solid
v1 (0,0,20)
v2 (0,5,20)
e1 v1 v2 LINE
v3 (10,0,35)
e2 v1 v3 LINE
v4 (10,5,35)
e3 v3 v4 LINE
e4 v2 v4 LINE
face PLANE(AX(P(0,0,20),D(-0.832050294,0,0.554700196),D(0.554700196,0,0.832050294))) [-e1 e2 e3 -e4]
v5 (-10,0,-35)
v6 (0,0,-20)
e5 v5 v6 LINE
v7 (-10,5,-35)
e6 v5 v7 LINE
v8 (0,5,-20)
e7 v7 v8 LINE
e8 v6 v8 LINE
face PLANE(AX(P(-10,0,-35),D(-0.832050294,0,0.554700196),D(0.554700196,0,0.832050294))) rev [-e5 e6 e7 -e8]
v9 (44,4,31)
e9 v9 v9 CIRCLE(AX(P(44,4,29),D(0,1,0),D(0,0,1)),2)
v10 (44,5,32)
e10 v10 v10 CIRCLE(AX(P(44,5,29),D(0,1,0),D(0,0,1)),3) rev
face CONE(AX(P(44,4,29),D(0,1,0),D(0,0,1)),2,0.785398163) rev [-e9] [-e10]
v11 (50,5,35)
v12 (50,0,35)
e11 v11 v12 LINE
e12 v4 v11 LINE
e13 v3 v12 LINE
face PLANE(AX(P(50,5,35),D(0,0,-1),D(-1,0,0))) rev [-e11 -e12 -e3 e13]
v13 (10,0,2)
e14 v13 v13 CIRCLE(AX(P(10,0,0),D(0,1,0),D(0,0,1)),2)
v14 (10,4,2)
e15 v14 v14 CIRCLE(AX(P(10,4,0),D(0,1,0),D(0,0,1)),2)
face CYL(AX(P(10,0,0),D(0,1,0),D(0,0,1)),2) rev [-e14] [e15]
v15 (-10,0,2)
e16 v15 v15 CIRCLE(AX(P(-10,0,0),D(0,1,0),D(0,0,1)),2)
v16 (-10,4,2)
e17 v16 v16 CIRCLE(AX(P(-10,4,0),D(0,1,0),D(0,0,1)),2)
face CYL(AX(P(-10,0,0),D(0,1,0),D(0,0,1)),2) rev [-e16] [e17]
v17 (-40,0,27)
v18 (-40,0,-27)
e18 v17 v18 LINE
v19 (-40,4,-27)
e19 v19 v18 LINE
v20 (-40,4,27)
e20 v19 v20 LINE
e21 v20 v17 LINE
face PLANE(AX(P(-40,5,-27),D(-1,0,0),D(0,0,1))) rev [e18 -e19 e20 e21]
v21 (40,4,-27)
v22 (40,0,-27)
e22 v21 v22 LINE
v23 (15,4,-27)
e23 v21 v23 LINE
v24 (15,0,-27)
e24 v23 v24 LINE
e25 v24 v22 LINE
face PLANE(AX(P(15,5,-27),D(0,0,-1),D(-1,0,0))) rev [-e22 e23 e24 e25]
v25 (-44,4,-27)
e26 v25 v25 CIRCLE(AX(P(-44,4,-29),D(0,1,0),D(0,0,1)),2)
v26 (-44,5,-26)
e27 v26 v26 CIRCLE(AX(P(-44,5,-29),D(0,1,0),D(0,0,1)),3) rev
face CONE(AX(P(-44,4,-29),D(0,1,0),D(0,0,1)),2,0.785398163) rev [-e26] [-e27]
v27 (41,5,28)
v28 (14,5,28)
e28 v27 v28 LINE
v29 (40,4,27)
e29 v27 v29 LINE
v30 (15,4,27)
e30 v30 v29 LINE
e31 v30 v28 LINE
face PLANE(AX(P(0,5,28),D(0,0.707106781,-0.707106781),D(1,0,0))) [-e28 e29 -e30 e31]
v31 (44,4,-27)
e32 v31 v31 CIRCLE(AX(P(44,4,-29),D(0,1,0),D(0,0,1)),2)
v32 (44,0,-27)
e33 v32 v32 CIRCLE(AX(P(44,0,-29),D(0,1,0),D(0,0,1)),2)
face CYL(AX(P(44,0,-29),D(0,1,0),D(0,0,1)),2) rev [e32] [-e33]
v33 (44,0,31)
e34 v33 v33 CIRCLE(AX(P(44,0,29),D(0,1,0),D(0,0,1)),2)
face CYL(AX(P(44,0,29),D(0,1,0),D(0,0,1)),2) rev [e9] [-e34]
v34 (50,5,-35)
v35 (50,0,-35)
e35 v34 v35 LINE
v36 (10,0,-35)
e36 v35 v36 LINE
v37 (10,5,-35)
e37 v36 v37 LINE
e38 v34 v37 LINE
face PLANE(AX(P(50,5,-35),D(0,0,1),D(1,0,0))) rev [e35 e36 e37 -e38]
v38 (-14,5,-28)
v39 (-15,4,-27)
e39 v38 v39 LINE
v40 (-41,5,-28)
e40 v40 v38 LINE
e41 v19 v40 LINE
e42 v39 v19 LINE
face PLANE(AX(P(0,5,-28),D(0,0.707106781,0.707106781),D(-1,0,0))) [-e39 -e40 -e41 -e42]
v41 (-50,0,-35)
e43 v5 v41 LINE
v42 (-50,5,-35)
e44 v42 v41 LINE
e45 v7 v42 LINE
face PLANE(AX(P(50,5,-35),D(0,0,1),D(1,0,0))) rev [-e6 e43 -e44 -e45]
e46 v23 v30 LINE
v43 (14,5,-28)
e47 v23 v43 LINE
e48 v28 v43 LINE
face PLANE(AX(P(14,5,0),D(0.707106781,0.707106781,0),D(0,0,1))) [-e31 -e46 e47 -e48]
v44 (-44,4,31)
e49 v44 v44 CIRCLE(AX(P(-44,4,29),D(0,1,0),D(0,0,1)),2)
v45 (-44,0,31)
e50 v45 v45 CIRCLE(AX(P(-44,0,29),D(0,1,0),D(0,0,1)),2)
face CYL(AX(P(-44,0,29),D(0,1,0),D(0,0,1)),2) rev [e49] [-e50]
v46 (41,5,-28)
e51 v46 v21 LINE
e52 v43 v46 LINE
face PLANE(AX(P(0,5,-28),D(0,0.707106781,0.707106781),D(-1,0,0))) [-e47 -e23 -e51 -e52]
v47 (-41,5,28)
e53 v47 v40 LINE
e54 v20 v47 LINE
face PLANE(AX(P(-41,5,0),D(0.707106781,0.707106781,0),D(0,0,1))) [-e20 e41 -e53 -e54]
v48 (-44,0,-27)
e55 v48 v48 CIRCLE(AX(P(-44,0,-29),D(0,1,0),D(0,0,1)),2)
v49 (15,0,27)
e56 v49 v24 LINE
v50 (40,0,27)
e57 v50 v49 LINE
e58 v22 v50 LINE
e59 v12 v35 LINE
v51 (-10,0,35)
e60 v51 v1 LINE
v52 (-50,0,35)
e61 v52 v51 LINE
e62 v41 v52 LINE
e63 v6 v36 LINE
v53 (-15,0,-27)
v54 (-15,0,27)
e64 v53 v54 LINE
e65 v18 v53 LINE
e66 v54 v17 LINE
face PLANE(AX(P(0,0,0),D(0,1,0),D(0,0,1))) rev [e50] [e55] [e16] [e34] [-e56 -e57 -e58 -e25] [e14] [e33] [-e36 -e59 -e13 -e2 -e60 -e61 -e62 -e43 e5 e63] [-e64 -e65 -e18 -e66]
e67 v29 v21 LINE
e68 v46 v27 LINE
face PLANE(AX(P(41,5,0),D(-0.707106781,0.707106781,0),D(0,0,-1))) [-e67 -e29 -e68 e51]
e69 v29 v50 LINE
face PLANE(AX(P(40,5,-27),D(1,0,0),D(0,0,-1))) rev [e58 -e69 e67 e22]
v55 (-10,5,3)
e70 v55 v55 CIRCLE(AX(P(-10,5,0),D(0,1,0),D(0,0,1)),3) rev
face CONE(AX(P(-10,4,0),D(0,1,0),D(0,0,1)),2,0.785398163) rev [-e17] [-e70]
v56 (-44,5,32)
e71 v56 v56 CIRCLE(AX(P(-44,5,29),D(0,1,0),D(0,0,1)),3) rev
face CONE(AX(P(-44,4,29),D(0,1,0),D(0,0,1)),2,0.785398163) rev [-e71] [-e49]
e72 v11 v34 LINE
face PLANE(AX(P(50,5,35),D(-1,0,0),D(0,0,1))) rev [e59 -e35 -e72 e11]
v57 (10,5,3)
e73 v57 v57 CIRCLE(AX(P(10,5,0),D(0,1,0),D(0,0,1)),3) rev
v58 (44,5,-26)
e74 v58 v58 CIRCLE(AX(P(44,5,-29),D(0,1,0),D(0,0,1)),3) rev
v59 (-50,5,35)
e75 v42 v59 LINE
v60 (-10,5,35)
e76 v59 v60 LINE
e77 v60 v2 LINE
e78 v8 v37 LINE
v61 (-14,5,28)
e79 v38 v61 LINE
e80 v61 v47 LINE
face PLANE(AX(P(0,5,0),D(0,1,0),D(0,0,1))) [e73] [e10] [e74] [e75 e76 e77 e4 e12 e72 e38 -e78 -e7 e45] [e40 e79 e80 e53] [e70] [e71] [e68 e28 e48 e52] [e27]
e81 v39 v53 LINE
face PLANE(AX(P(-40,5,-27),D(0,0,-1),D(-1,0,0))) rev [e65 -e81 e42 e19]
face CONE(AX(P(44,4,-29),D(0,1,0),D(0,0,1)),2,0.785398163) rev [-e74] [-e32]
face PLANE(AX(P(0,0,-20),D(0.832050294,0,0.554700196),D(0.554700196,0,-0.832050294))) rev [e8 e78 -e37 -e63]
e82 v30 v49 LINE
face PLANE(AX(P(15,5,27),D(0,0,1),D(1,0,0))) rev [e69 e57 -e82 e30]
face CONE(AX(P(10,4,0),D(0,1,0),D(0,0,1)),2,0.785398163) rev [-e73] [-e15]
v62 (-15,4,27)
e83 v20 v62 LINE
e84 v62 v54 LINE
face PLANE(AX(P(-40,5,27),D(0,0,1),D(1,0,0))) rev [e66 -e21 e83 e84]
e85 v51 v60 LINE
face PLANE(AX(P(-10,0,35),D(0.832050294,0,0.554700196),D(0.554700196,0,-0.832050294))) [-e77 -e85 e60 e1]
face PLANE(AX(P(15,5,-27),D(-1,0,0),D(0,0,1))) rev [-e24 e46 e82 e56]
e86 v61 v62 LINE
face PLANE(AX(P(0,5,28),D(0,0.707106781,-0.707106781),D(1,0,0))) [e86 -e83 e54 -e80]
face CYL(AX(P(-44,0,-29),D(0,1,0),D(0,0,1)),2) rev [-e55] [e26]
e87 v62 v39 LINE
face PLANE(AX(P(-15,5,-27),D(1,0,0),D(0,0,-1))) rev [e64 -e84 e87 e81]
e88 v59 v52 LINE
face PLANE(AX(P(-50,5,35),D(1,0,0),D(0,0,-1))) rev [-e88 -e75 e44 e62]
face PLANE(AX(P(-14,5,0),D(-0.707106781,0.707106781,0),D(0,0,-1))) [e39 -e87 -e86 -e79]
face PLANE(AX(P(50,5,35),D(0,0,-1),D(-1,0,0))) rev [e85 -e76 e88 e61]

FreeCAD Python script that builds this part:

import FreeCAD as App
import Part
import Sketcher
Q = App.Units.Quantity


def edges_at(feature, points):
    """Names of the edges that pass closest to the given points."""
    edges = feature.Shape.Edges
    near = lambda p: min(range(len(edges)), key=lambda i: edges[i].distToShape(Part.Vertex(*p))[0])
    return sorted({f"Edge{near(p) + 1}" for p in points})

doc = App.newDocument("Part")
body = doc.addObject("PartDesign::Body", "Body")

# Sketch on XZ plane
sketch1 = doc.addObject("Sketcher::SketchObject", "Sketch")
body.addObject(sketch1)
sketch1.AttachmentSupport = (doc.XZ_Plane, [""])
sketch1.MapMode = "FlatFace"
sketch1.addGeometry([
    Part.LineSegment(App.Vector(-50, -35, 0), App.Vector(-50, 35, 0)),
    Part.LineSegment(App.Vector(-50, 35, 0), App.Vector(50, 35, 0)),
    Part.LineSegment(App.Vector(50, 35, 0), App.Vector(50, -35, 0)),
    Part.LineSegment(App.Vector(50, -35, 0), App.Vector(-50, -35, 0)),
], False)
sketch1.addConstraint([
    Sketcher.Constraint("Coincident", 0, 2, 1, 1),
    Sketcher.Constraint("Coincident", 1, 2, 2, 1),
    Sketcher.Constraint("Coincident", 2, 2, 3, 1),
    Sketcher.Constraint("Coincident", 3, 2, 0, 1),
    Sketcher.Constraint("Vertical", 0),
    Sketcher.Constraint("Horizontal", 1),
    Sketcher.Constraint("Vertical", 2),
    Sketcher.Constraint("Horizontal", 3),
    Sketcher.Constraint("Symmetric", 0, 2, 2, 2, -1, 1),
    Sketcher.Constraint("DistanceX", 1, 1, 1, 2, Q("100 mm")),
    Sketcher.Constraint("DistanceY", 0, 1, 0, 2, Q("70 mm")),
])
pad1 = doc.addObject("PartDesign::Pad", "Pad")
body.addObject(pad1)
pad1.Profile = sketch1
pad1.Length = 5
pad1.Reversed = True

# Sketch on XZ plane
sketch2 = doc.addObject("Sketcher::SketchObject", "Sketch001")
body.addObject(sketch2)
sketch2.AttachmentSupport = (doc.XZ_Plane, [""])
sketch2.MapMode = "FlatFace"
sketch2.AttachmentOffset = App.Placement(App.Vector(0, 0, -5), App.Rotation())
sketch2.addGeometry([
    Part.Circle(App.Vector(-44, -29, 0), App.Vector(0, 0, 1), 2),
    Part.Circle(App.Vector(44, -29, 0), App.Vector(0, 0, 1), 2),
    Part.Circle(App.Vector(44, 29, 0), App.Vector(0, 0, 1), 2),
    Part.Circle(App.Vector(-44, 29, 0), App.Vector(0, 0, 1), 2),
], False)
sketch2.addConstraint([
    Sketcher.Constraint("Equal", 0, 1),
    Sketcher.Constraint("Equal", 1, 2),
    Sketcher.Constraint("Equal", 2, 3),
    Sketcher.Constraint("Symmetric", 0, 3, 2, 3, -1, 1),
    Sketcher.Constraint("Symmetric", 1, 3, 3, 3, -1, 1),
    Sketcher.Constraint("Symmetric", 0, 3, 1, 3, -2),
    Sketcher.Constraint("Diameter", 0, Q("4 mm")),
    Sketcher.Constraint("DistanceX", 0, 3, -1, 1, Q("44 mm")),
    Sketcher.Constraint("DistanceY", 0, 3, -1, 1, Q("29 mm")),
])
pocket1 = doc.addObject("PartDesign::Pocket", "Pocket")
body.addObject(pocket1)
pocket1.Profile = sketch2
pocket1.Type = "ThroughAll"
pocket1.Reversed = True

# Sketch on XZ plane
sketch3 = doc.addObject("Sketcher::SketchObject", "Sketch002")
body.addObject(sketch3)
sketch3.AttachmentSupport = (doc.XZ_Plane, [""])
sketch3.MapMode = "FlatFace"
sketch3.AttachmentOffset = App.Placement(App.Vector(0, 0, -5), App.Rotation())
sketch3.addGeometry([
    Part.Circle(App.Vector(-10, 0, 0), App.Vector(0, 0, 1), 2),
    Part.Circle(App.Vector(10, 0, 0), App.Vector(0, 0, 1), 2),
], False)
sketch3.addConstraint([
    Sketcher.Constraint("Equal", 0, 1),
    Sketcher.Constraint("Symmetric", 0, 3, 1, 3, -1, 1),
    Sketcher.Constraint("PointOnObject", 0, 3, -1),
    Sketcher.Constraint("Diameter", 0, Q("4 mm")),
    Sketcher.Constraint("DistanceX", 0, 3, -1, 1, Q("10 mm")),
])
pocket2 = doc.addObject("PartDesign::Pocket", "Pocket001")
body.addObject(pocket2)
pocket2.Profile = sketch3
pocket2.Type = "ThroughAll"
pocket2.Reversed = True

# Sketch on XZ plane
sketch4 = doc.addObject("Sketcher::SketchObject", "Sketch003")
body.addObject(sketch4)
sketch4.AttachmentSupport = (doc.XZ_Plane, [""])
sketch4.MapMode = "FlatFace"
sketch4.addGeometry([
    Part.LineSegment(App.Vector(-40, 27, 0), App.Vector(-40, -27, 0)),  # 0
    Part.LineSegment(App.Vector(-40, -27, 0), App.Vector(-15, -27, 0)),  # 1
    Part.LineSegment(App.Vector(-15, -27, 0), App.Vector(-15, 27, 0)),  # 2
    Part.LineSegment(App.Vector(-15, 27, 0), App.Vector(-40, 27, 0)),  # 3
    Part.LineSegment(App.Vector(15, 27, 0), App.Vector(15, -27, 0)),  # 4
    Part.LineSegment(App.Vector(15, -27, 0), App.Vector(40, -27, 0)),  # 5
    Part.LineSegment(App.Vector(40, -27, 0), App.Vector(40, 27, 0)),  # 6
    Part.LineSegment(App.Vector(40, 27, 0), App.Vector(15, 27, 0)),  # 7
], False)
sketch4.addConstraint([
    Sketcher.Constraint("Coincident", 0, 2, 1, 1),
    Sketcher.Constraint("Coincident", 1, 2, 2, 1),
    Sketcher.Constraint("Coincident", 2, 2, 3, 1),
    Sketcher.Constraint("Coincident", 3, 2, 0, 1),
    Sketcher.Constraint("Coincident", 4, 2, 5, 1),
    Sketcher.Constraint("Coincident", 5, 2, 6, 1),
    Sketcher.Constraint("Coincident", 6, 2, 7, 1),
    Sketcher.Constraint("Coincident", 7, 2, 4, 1),
    Sketcher.Constraint("Vertical", 0),
    Sketcher.Constraint("Horizontal", 1),
    Sketcher.Constraint("Vertical", 2),
    Sketcher.Constraint("Horizontal", 3),
    Sketcher.Constraint("Vertical", 4),
    Sketcher.Constraint("Horizontal", 5),
    Sketcher.Constraint("Vertical", 6),
    Sketcher.Constraint("Horizontal", 7),
    Sketcher.Constraint("Symmetric", 2, 2, 4, 2, -1, 1),
    Sketcher.Constraint("Symmetric", 0, 2, 6, 2, -1, 1),
    Sketcher.Constraint("Horizontal", 1, 2, 4, 2),
    Sketcher.Constraint("DistanceX", 1, 1, 1, 2, Q("25 mm")),
    Sketcher.Constraint("DistanceY", 0, 2, 0, 1, Q("54 mm")),
    Sketcher.Constraint("DistanceX", 0, 2, -1, 1, Q("40 mm")),
])
pocket3 = doc.addObject("PartDesign::Pocket", "Pocket002")
body.addObject(pocket3)
pocket3.Profile = sketch4
pocket3.Type = "ThroughAll"

# Sketch on XZ plane
sketch5 = doc.addObject("Sketcher::SketchObject", "Sketch004")
body.addObject(sketch5)
sketch5.AttachmentSupport = (doc.XZ_Plane, [""])
sketch5.MapMode = "FlatFace"
sketch5.AttachmentOffset = App.Placement(App.Vector(0, 0, -5), App.Rotation())
sketch5.addGeometry([
    Part.LineSegment(App.Vector(-10, -35, 0), App.Vector(0, -20, 0)),
    Part.LineSegment(App.Vector(0, -20, 0), App.Vector(10, -35, 0)),
    Part.LineSegment(App.Vector(10, -35, 0), App.Vector(-10, -35, 0)),
], False)
sketch5.addConstraint([
    Sketcher.Constraint("Coincident", 0, 2, 1, 1),
    Sketcher.Constraint("Coincident", 1, 2, 2, 1),
    Sketcher.Constraint("Coincident", 2, 2, 0, 1),
    Sketcher.Constraint("Horizontal", 2),
    Sketcher.Constraint("PointOnObject", 0, 2, -2),
    Sketcher.Constraint("Equal", 0, 1),
    Sketcher.Constraint("DistanceX", 2, 2, 2, 1, Q("20 mm")),
    Sketcher.Constraint("DistanceY", 0, 2, -1, 1, Q("20 mm")),
    Sketcher.Constraint("DistanceY", 1, 2, -1, 1, Q("35 mm")),
])
pocket4 = doc.addObject("PartDesign::Pocket", "Pocket003")
body.addObject(pocket4)
pocket4.Profile = sketch5
pocket4.Type = "ThroughAll"
pocket4.Reversed = True
doc.recompute()

mirrored = doc.addObject("PartDesign::Mirrored", "Mirrored")
body.addObject(mirrored)
mirrored.Originals = [pocket4]
mirrored.MirrorPlane = (doc.XY_Plane, [""])
body.Tip = mirrored
doc.recompute()

chamfer = doc.addObject("PartDesign::Chamfer", "Chamfer")
body.addObject(chamfer)
chamfer.Base = (mirrored, edges_at(mirrored, [
    (-46, 5, 29),
    (42, 5, 29),
    (42, 5, -29),
    (-46, 5, -29),
    (-12, 5, 0),
    (8, 5, 0),
    (-15, 5, 0),
    (-27.5, 5, -27),
    (-40, 5, 0),
    (-27.5, 5, 27),
    (40, 5, 0),
    (27.5, 5, -27),
    (15, 5, 0),
    (27.5, 5, 27),
]))
chamfer.Size = 1

doc.recompute()
